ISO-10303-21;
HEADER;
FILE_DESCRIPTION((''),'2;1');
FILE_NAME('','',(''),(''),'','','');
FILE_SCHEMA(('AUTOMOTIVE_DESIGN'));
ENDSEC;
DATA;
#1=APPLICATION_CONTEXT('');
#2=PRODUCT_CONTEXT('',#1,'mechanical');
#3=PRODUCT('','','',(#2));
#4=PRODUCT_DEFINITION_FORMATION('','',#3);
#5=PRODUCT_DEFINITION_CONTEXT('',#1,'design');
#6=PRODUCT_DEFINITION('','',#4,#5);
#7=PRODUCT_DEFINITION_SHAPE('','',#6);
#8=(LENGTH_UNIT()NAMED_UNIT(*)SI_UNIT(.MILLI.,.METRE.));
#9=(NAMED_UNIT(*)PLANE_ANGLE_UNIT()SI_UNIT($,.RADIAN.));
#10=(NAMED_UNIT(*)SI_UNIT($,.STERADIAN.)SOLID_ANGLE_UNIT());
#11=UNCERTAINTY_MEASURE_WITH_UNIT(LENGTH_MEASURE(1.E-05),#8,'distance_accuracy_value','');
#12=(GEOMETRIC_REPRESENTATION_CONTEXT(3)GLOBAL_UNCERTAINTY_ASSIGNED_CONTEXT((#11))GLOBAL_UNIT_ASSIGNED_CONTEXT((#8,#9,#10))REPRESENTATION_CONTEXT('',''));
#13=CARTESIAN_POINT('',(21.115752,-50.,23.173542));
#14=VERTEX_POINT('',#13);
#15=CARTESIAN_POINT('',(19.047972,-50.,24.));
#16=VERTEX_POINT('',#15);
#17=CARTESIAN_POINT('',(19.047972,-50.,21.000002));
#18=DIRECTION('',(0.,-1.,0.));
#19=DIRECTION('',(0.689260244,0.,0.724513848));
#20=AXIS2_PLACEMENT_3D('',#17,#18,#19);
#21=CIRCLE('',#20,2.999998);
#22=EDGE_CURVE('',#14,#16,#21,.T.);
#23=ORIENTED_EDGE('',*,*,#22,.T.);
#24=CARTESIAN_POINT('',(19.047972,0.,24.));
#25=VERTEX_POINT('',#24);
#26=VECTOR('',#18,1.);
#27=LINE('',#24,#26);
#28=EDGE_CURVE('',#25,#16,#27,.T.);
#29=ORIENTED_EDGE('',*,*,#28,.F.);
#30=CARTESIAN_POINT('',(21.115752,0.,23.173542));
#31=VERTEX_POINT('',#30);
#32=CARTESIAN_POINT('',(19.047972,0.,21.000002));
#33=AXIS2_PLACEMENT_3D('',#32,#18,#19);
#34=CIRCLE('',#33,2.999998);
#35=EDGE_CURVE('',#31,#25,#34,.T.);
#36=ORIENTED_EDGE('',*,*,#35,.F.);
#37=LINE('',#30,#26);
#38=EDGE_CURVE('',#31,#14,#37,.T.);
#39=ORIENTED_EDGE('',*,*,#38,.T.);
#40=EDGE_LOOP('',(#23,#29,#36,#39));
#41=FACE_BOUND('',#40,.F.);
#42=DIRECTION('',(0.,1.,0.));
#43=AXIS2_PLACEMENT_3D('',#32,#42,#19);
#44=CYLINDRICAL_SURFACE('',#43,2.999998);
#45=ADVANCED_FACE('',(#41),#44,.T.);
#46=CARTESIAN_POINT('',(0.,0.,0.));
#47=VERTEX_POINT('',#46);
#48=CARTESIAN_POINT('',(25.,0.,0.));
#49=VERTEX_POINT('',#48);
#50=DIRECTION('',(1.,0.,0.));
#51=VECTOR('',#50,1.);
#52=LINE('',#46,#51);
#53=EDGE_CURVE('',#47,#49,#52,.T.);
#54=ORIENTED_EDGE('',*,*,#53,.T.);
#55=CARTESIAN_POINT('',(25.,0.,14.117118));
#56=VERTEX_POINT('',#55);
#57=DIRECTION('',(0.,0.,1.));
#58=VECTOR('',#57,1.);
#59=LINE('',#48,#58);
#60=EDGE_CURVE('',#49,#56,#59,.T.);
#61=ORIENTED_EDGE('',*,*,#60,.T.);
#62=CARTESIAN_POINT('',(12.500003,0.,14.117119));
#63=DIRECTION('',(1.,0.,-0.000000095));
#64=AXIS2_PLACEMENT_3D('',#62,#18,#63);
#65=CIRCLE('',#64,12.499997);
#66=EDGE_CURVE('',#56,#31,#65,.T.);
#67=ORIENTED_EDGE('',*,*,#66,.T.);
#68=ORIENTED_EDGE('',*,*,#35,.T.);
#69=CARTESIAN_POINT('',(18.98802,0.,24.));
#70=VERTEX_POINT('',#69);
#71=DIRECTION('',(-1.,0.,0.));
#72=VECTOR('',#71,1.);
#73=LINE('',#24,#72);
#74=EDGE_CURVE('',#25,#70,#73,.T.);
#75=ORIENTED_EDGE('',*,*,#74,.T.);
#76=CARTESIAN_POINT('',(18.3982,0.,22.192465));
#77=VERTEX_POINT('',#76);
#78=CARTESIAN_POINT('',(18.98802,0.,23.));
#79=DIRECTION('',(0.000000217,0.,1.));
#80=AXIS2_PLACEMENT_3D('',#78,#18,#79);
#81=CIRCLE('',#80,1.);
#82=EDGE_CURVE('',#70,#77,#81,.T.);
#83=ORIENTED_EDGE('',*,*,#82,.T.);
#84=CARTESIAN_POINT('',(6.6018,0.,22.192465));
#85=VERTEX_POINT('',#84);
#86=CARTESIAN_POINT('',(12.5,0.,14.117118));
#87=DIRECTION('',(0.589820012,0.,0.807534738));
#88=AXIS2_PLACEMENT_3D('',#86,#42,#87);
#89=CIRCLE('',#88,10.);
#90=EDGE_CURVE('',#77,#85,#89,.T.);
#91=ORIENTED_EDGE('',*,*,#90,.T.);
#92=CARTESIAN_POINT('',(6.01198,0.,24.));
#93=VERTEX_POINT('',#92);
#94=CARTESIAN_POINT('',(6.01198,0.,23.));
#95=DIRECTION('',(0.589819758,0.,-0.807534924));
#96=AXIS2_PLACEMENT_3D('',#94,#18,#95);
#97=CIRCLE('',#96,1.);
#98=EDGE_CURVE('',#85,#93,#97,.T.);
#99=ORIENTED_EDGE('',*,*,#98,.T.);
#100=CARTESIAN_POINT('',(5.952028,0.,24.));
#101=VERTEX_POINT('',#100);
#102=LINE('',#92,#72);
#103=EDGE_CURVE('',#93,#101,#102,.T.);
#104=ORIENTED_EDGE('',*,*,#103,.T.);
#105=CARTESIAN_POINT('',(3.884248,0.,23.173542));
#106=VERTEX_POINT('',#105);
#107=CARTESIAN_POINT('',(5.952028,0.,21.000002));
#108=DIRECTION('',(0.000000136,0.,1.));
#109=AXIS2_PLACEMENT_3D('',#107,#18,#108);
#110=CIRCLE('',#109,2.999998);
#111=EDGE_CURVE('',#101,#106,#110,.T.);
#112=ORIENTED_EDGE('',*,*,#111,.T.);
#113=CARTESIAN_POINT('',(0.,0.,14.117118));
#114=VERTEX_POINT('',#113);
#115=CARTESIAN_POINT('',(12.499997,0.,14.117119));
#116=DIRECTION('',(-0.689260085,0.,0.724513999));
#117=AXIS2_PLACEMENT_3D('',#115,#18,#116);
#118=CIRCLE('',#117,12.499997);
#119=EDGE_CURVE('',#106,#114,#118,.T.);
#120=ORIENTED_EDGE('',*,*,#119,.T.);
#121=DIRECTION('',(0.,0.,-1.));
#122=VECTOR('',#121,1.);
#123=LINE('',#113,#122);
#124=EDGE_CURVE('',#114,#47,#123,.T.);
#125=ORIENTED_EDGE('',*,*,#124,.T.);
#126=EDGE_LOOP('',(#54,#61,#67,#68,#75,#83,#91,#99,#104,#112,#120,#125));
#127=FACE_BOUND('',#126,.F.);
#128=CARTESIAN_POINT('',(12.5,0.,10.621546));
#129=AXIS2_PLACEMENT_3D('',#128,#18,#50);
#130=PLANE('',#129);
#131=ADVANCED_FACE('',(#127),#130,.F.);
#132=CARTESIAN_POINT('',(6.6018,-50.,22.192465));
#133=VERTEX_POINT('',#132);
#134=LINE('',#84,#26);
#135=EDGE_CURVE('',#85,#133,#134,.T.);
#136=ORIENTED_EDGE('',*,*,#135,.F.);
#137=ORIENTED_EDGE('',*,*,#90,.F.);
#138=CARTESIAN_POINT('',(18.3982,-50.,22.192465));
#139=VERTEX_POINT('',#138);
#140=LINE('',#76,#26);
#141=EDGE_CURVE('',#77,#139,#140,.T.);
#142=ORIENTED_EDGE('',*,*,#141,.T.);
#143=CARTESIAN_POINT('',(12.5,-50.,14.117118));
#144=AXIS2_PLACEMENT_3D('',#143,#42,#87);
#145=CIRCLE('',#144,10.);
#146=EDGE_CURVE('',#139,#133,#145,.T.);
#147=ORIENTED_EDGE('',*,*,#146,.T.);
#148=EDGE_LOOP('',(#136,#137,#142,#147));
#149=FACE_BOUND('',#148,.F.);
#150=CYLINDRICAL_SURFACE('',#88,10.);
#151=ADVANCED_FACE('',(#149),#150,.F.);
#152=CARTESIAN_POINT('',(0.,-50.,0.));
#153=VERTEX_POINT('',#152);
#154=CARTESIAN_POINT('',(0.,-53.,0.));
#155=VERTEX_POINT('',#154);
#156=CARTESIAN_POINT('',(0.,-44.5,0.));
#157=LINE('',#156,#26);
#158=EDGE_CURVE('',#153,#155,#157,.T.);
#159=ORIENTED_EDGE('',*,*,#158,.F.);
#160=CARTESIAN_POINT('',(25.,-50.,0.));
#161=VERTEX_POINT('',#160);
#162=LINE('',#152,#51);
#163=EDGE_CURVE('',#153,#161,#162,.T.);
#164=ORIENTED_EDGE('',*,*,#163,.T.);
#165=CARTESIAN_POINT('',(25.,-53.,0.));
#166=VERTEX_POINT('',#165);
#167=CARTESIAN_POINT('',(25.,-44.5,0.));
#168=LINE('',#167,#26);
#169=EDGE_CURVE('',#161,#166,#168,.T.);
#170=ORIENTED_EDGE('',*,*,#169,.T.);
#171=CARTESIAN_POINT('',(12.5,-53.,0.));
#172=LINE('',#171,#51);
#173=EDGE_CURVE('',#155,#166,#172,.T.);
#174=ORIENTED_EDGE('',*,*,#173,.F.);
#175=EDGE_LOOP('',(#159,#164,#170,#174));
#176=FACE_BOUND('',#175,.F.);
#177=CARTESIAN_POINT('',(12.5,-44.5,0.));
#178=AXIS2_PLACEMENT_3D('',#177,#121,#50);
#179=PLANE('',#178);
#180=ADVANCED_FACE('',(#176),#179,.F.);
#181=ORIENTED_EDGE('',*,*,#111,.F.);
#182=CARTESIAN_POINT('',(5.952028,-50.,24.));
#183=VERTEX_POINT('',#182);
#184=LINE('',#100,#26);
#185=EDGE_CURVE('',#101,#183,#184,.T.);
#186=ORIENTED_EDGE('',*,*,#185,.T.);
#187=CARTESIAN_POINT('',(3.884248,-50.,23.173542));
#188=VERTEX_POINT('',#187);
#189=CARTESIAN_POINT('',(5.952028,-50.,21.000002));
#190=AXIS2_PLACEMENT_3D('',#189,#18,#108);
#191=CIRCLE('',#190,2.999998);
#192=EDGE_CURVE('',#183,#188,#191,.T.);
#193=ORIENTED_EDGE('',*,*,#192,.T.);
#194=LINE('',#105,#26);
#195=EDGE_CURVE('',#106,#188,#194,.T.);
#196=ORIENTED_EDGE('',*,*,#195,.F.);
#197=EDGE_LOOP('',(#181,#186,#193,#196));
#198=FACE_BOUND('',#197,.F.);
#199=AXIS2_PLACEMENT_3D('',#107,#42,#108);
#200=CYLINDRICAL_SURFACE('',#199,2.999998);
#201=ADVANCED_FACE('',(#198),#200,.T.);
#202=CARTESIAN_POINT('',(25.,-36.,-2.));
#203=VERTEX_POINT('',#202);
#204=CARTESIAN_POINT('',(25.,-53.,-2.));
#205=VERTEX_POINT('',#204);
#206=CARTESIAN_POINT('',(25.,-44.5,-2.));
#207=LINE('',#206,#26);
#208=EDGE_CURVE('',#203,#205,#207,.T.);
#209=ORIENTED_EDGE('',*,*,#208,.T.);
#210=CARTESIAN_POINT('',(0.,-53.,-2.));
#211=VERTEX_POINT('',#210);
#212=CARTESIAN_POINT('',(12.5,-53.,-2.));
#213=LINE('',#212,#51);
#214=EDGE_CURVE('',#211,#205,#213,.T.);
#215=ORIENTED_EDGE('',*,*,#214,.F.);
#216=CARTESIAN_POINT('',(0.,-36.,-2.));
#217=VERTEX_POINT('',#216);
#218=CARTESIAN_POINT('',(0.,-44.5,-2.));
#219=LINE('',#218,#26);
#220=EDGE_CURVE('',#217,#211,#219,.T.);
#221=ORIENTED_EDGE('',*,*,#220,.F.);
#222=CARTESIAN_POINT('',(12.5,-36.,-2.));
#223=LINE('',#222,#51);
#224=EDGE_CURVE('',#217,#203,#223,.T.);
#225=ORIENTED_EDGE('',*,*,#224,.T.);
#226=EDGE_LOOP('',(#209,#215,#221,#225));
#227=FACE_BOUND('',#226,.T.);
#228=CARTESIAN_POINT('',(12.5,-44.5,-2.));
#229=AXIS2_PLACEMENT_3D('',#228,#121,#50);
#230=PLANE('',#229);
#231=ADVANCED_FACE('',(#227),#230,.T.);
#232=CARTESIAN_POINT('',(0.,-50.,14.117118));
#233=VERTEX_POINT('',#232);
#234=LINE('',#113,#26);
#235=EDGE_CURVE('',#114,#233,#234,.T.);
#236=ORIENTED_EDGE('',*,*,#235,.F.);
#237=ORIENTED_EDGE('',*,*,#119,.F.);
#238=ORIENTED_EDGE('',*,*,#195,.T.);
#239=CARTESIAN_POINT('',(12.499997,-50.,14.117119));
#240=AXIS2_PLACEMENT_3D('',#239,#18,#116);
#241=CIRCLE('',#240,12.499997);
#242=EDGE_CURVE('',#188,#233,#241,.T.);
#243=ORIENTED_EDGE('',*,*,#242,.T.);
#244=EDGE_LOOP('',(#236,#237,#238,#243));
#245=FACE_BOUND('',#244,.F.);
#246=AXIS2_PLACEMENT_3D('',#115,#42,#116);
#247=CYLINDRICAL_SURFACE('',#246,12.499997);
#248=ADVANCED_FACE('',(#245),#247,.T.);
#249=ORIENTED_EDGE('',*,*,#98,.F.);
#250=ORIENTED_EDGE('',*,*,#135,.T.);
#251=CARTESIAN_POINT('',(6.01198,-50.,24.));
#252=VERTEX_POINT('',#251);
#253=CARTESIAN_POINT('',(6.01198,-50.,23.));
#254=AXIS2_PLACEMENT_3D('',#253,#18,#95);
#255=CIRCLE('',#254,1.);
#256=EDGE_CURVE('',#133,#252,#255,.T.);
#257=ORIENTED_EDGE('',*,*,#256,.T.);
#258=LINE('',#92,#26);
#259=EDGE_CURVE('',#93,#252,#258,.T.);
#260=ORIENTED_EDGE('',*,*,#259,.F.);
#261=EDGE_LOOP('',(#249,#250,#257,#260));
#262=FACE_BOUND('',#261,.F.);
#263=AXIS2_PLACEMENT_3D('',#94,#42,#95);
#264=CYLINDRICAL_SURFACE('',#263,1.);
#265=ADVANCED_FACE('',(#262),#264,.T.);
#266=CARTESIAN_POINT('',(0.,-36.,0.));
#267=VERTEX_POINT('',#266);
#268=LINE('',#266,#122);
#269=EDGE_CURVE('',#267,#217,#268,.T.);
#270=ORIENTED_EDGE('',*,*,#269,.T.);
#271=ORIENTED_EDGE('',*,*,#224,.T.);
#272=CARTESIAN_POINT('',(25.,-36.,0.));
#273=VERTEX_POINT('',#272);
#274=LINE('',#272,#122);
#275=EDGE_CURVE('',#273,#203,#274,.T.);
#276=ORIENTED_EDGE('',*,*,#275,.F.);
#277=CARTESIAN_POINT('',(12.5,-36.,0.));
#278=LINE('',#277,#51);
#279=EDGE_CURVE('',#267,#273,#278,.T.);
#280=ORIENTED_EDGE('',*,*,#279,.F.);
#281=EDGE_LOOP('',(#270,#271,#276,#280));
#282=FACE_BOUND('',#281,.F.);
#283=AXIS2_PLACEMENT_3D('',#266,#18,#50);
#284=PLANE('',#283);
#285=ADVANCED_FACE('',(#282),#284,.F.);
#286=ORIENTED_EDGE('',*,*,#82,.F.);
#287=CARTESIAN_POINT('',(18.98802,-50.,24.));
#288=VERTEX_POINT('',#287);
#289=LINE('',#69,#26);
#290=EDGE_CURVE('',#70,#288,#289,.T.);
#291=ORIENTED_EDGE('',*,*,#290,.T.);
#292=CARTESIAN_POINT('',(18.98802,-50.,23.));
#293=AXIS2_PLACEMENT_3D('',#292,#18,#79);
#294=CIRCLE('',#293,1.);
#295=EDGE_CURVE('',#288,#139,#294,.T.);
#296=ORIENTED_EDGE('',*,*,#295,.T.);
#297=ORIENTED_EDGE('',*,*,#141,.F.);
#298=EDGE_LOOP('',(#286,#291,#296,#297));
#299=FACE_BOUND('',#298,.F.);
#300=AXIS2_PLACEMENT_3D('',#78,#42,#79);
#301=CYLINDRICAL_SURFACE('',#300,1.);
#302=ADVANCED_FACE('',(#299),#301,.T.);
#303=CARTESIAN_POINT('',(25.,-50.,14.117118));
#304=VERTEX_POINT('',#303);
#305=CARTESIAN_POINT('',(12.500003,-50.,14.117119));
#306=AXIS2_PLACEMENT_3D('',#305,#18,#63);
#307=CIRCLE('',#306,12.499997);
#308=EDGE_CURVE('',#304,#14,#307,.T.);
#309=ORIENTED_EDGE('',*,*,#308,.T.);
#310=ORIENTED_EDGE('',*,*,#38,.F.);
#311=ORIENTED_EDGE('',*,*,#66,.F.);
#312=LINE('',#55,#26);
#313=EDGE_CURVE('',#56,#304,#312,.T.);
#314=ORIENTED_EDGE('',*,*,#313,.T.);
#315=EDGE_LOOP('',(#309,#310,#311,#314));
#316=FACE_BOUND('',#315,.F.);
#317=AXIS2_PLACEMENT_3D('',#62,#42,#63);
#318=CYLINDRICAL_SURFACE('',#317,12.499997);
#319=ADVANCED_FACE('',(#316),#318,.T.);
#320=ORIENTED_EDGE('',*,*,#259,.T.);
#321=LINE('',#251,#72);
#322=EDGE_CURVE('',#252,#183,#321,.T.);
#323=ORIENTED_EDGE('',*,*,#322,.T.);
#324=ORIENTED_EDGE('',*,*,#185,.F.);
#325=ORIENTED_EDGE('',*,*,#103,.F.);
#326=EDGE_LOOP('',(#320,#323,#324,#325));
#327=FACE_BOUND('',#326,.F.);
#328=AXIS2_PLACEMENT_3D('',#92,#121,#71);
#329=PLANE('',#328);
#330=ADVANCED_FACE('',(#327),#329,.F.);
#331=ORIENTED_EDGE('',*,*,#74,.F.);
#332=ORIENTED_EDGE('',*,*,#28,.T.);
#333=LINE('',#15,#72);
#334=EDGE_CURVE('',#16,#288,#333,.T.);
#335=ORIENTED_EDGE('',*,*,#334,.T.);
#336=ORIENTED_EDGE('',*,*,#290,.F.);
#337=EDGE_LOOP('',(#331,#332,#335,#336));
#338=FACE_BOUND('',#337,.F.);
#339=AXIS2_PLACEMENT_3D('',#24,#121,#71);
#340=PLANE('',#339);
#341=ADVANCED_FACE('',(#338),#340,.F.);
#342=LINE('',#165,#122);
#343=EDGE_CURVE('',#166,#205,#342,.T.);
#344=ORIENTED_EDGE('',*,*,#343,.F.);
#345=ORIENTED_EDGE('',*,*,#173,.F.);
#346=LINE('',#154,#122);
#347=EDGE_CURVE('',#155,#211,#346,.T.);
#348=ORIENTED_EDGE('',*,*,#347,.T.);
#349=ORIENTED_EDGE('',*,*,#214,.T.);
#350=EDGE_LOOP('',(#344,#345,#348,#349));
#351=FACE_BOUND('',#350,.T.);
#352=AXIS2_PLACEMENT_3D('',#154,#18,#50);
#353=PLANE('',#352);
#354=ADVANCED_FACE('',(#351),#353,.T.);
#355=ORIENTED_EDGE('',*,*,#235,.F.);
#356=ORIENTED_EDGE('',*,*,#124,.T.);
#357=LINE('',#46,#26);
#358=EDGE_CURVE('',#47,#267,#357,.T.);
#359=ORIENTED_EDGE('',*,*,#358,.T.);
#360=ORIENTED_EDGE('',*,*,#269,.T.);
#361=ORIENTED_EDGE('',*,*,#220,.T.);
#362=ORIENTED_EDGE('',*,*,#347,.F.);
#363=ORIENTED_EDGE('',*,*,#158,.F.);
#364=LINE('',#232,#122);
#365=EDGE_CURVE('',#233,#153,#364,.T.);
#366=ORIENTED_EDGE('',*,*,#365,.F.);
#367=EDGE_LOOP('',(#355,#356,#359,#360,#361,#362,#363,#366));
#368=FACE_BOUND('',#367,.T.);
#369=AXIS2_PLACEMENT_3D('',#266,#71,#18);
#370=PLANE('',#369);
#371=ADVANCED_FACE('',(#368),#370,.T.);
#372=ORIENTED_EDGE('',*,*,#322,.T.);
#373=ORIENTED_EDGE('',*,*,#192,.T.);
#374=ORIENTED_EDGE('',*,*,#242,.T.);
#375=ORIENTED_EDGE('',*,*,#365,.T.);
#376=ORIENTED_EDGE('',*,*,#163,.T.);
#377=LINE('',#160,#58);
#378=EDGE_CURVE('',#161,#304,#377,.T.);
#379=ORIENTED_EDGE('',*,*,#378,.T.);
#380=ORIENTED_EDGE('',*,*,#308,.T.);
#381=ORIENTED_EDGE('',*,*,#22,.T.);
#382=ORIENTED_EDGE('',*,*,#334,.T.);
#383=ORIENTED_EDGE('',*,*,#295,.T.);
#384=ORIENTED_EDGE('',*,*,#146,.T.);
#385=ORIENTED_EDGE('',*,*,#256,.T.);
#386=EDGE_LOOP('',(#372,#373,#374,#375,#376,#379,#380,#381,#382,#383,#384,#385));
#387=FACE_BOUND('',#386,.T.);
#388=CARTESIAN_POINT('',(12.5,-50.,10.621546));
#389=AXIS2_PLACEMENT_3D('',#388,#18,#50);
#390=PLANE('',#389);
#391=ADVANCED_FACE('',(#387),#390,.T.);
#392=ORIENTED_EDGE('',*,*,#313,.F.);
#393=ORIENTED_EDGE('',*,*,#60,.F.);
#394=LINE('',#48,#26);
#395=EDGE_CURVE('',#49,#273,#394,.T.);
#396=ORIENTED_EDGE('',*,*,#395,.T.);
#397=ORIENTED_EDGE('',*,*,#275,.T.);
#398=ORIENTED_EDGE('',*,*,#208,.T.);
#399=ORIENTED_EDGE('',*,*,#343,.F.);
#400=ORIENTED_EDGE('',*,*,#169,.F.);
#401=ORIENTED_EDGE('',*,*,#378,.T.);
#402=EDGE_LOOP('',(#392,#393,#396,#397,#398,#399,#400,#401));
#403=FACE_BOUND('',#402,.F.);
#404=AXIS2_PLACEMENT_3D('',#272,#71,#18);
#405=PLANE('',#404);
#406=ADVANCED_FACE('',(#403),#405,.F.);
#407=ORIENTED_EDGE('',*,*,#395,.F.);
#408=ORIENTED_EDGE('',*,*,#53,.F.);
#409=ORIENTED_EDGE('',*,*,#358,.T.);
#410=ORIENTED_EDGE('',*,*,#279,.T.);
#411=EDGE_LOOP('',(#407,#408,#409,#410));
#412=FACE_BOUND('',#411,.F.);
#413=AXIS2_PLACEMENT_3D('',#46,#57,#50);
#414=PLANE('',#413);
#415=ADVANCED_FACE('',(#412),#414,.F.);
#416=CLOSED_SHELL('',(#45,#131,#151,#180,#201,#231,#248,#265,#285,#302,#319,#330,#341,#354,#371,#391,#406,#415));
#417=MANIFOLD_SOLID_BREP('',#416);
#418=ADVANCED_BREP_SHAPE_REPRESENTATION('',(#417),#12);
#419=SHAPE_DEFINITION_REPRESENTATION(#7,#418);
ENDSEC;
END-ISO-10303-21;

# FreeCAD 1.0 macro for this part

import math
import FreeCAD as App
import Part
import Sketcher
from FreeCAD import Vector
Q = App.Units.Quantity

doc = App.newDocument("Part")
body = doc.addObject("PartDesign::Body", "Body")

sketch1 = body.newObject("Sketcher::SketchObject", "Sketch")
sketch1.AttachmentSupport = (doc.getObject("XZ_Plane"), [""])
sketch1.MapMode = "FlatFace"
sketch1.addGeometry(Part.LineSegment(Vector(0, 14.12, 0), Vector(0, 0, 0)), False)
sketch1.addGeometry(Part.LineSegment(Vector(0, 0, 0), Vector(25, 0, 0)), False)
sketch1.addGeometry(Part.LineSegment(Vector(25, 0, 0), Vector(25, 14.12, 0)), False)
sketch1.addGeometry(Part.ArcOfCircle(Part.Circle(Vector(12.5, 14.12, 0), Vector(0, 0, 1), 12.5), math.radians(0), math.radians(46)), False)
sketch1.addGeometry(Part.ArcOfCircle(Part.Circle(Vector(19.05, 21, 0), Vector(0, 0, 1), 3), math.radians(46), math.radians(90)), False)
sketch1.addGeometry(Part.LineSegment(Vector(19.05, 24, 0), Vector(18.99, 24, 0)), False)
sketch1.addGeometry(Part.ArcOfCircle(Part.Circle(Vector(18.99, 23, 0), Vector(0, 0, 1), 1), math.radians(90), math.radians(234)), False)
sketch1.addGeometry(Part.ArcOfCircle(Part.Circle(Vector(12.5, 14.12, 0), Vector(0, 0, 1), 10), math.radians(126), math.radians(414)), False)
sketch1.addGeometry(Part.ArcOfCircle(Part.Circle(Vector(6.01, 23, 0), Vector(0, 0, 1), 1), math.radians(-54), math.radians(90)), False)
sketch1.addGeometry(Part.LineSegment(Vector(6.01, 24, 0), Vector(5.95, 24, 0)), False)
sketch1.addGeometry(Part.ArcOfCircle(Part.Circle(Vector(5.95, 21, 0), Vector(0, 0, 1), 3), math.radians(90), math.radians(134)), False)
sketch1.addGeometry(Part.ArcOfCircle(Part.Circle(Vector(12.5, 14.12, 0), Vector(0, 0, 1), 12.5), math.radians(134), math.radians(180)), False)
sketch1.addConstraint(Sketcher.Constraint("Coincident", 0, 2, 1, 1))
sketch1.addConstraint(Sketcher.Constraint("Coincident", 1, 2, 2, 1))
sketch1.addConstraint(Sketcher.Constraint("Tangent", 2, 2, 3, 1))
sketch1.addConstraint(Sketcher.Constraint("Tangent", 3, 2, 4, 1))
sketch1.addConstraint(Sketcher.Constraint("Tangent", 4, 2, 5, 1))
sketch1.addConstraint(Sketcher.Constraint("Tangent", 5, 2, 6, 1))
sketch1.addConstraint(Sketcher.Constraint("Tangent", 6, 2, 7, 2))
sketch1.addConstraint(Sketcher.Constraint("Tangent", 7, 1, 8, 1))
sketch1.addConstraint(Sketcher.Constraint("Tangent", 8, 2, 9, 1))
sketch1.addConstraint(Sketcher.Constraint("Tangent", 9, 2, 10, 1))
sketch1.addConstraint(Sketcher.Constraint("Tangent", 10, 2, 11, 1))
sketch1.addConstraint(Sketcher.Constraint("Tangent", 11, 2, 0, 1))
sketch1.addConstraint(Sketcher.Constraint("Vertical", 0))
sketch1.addConstraint(Sketcher.Constraint("Horizontal", 1))
sketch1.addConstraint(Sketcher.Constraint("Vertical", 2))
sketch1.addConstraint(Sketcher.Constraint("Horizontal", 5))
sketch1.addConstraint(Sketcher.Constraint("Horizontal", 9))
sketch1.addConstraint(Sketcher.Constraint("Coincident", 0, 2, -1, 1))
sketch1.addConstraint(Sketcher.Constraint("Coincident", 7, 3, 3, 3))
sketch1.addConstraint(Sketcher.Constraint("Coincident", 11, 3, 3, 3))
sketch1.addConstraint(Sketcher.Constraint("Equal", 6, 8))
sketch1.addConstraint(Sketcher.Constraint("Equal", 4, 10))
sketch1.addConstraint(Sketcher.Constraint("Equal", 3, 11))
sketch1.addConstraint(Sketcher.Constraint("Horizontal", 6, 3, 8, 3))
sketch1.addConstraint(Sketcher.Constraint("Radius", 4, Q("2.999998 mm")))
sketch1.addConstraint(Sketcher.Constraint("Radius", 6, Q("1 mm")))
sketch1.addConstraint(Sketcher.Constraint("Radius", 7, Q("10 mm")))
sketch1.addConstraint(Sketcher.Constraint("DistanceX", 1, 1, 1, 2, Q("25 mm")))
sketch1.addConstraint(Sketcher.Constraint("DistanceY", -1, 1, 4, 3, Q("21.000002 mm")))
sketch1.addConstraint(Sketcher.Constraint("DistanceX", -1, 1, 6, 2, Q("18.3982 mm")))
pad1 = body.newObject("PartDesign::Pad", "Pad")
pad1.Profile = sketch1
pad1.Length = 50

sketch2 = body.newObject("Sketcher::SketchObject", "Sketch001")
sketch2.AttachmentSupport = (doc.getObject("XY_Plane"), [""])
sketch2.MapMode = "FlatFace"
sketch2.addGeometry(Part.LineSegment(Vector(0, -53, 0), Vector(0, -36, 0)), False)
sketch2.addGeometry(Part.LineSegment(Vector(0, -36, 0), Vector(25, -36, 0)), False)
sketch2.addGeometry(Part.LineSegment(Vector(25, -36, 0), Vector(25, -53, 0)), False)
sketch2.addGeometry(Part.LineSegment(Vector(25, -53, 0), Vector(0, -53, 0)), False)
sketch2.addConstraint(Sketcher.Constraint("Coincident", 0, 2, 1, 1))
sketch2.addConstraint(Sketcher.Constraint("Coincident", 1, 2, 2, 1))
sketch2.addConstraint(Sketcher.Constraint("Coincident", 2, 2, 3, 1))
sketch2.addConstraint(Sketcher.Constraint("Coincident", 3, 2, 0, 1))
sketch2.addConstraint(Sketcher.Constraint("Vertical", 0))
sketch2.addConstraint(Sketcher.Constraint("Horizontal", 1))
sketch2.addConstraint(Sketcher.Constraint("Vertical", 2))
sketch2.addConstraint(Sketcher.Constraint("Horizontal", 3))
sketch2.addConstraint(Sketcher.Constraint("PointOnObject", 0, 2, -2))
sketch2.addConstraint(Sketcher.Constraint("DistanceX", 1, 1, 1, 2, Q("25 mm")))
sketch2.addConstraint(Sketcher.Constraint("DistanceY", 0, 1, 0, 2, Q("17 mm")))
sketch2.addConstraint(Sketcher.Constraint("DistanceY", 0, 2, -1, 1, Q("36 mm")))
pad2 = body.newObject("PartDesign::Pad", "Pad001")
pad2.Profile = sketch2
pad2.Length = 2
pad2.Reversed = True

doc.recompute()
